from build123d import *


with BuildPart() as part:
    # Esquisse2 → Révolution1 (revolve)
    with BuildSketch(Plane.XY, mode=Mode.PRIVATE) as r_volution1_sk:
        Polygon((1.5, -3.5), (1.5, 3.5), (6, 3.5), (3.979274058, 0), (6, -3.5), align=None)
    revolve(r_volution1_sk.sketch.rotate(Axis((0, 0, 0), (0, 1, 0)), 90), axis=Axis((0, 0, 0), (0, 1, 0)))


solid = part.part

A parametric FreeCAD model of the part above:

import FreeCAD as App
import Part
import Sketcher

V = App.Vector
Q = App.Units.Quantity

doc = App.newDocument("Part")
body = doc.addObject("PartDesign::Body", "Body")

sketch1 = body.newObject("Sketcher::SketchObject", "Sketch")
sketch1.AttachmentSupport = (doc.getObject("XY_Plane"), [""])
sketch1.MapMode = "FlatFace"
sketch1.addGeometry([
    Part.LineSegment(V(1.5, 3.5, 0), V(1.5, -3.5, 0)),
    Part.LineSegment(V(1.5, -3.5, 0), V(6, -3.5, 0)),
    Part.LineSegment(V(6, -3.5, 0), V(4, 0, 0)),
    Part.LineSegment(V(4, 0, 0), V(6, 3.5, 0)),
    Part.LineSegment(V(6, 3.5, 0), V(1.5, 3.5, 0)),
], False)
sketch1.addConstraint([
    Sketcher.Constraint("Coincident", 0, 2, 1, 1),
    Sketcher.Constraint("Coincident", 1, 2, 2, 1),
    Sketcher.Constraint("Coincident", 2, 2, 3, 1),
    Sketcher.Constraint("Coincident", 3, 2, 4, 1),
    Sketcher.Constraint("Coincident", 4, 2, 0, 1),
    Sketcher.Constraint("Vertical", 0),
    Sketcher.Constraint("Horizontal", 1),
    Sketcher.Constraint("Horizontal", 4),
    Sketcher.Constraint("Symmetric", 1, 2, 3, 2, -1),
    Sketcher.Constraint("PointOnObject", 2, 2, -1),
    Sketcher.Constraint("DistanceY", 0, 2, 0, 1, 7.0),
    Sketcher.Constraint("Angle", 2, Q("120 deg")),
    Sketcher.Constraint("DistanceX", 1, 1, 1, 2, 4.5),
    Sketcher.Constraint("DistanceX", -1, 1, 1, 2, 6.0),
])
revolution = body.newObject("PartDesign::Revolution", "Revolution")
revolution.Profile = sketch1
revolution.ReferenceAxis = (sketch1, ["V_Axis"])
revolution.Angle = 360

doc.recompute()
